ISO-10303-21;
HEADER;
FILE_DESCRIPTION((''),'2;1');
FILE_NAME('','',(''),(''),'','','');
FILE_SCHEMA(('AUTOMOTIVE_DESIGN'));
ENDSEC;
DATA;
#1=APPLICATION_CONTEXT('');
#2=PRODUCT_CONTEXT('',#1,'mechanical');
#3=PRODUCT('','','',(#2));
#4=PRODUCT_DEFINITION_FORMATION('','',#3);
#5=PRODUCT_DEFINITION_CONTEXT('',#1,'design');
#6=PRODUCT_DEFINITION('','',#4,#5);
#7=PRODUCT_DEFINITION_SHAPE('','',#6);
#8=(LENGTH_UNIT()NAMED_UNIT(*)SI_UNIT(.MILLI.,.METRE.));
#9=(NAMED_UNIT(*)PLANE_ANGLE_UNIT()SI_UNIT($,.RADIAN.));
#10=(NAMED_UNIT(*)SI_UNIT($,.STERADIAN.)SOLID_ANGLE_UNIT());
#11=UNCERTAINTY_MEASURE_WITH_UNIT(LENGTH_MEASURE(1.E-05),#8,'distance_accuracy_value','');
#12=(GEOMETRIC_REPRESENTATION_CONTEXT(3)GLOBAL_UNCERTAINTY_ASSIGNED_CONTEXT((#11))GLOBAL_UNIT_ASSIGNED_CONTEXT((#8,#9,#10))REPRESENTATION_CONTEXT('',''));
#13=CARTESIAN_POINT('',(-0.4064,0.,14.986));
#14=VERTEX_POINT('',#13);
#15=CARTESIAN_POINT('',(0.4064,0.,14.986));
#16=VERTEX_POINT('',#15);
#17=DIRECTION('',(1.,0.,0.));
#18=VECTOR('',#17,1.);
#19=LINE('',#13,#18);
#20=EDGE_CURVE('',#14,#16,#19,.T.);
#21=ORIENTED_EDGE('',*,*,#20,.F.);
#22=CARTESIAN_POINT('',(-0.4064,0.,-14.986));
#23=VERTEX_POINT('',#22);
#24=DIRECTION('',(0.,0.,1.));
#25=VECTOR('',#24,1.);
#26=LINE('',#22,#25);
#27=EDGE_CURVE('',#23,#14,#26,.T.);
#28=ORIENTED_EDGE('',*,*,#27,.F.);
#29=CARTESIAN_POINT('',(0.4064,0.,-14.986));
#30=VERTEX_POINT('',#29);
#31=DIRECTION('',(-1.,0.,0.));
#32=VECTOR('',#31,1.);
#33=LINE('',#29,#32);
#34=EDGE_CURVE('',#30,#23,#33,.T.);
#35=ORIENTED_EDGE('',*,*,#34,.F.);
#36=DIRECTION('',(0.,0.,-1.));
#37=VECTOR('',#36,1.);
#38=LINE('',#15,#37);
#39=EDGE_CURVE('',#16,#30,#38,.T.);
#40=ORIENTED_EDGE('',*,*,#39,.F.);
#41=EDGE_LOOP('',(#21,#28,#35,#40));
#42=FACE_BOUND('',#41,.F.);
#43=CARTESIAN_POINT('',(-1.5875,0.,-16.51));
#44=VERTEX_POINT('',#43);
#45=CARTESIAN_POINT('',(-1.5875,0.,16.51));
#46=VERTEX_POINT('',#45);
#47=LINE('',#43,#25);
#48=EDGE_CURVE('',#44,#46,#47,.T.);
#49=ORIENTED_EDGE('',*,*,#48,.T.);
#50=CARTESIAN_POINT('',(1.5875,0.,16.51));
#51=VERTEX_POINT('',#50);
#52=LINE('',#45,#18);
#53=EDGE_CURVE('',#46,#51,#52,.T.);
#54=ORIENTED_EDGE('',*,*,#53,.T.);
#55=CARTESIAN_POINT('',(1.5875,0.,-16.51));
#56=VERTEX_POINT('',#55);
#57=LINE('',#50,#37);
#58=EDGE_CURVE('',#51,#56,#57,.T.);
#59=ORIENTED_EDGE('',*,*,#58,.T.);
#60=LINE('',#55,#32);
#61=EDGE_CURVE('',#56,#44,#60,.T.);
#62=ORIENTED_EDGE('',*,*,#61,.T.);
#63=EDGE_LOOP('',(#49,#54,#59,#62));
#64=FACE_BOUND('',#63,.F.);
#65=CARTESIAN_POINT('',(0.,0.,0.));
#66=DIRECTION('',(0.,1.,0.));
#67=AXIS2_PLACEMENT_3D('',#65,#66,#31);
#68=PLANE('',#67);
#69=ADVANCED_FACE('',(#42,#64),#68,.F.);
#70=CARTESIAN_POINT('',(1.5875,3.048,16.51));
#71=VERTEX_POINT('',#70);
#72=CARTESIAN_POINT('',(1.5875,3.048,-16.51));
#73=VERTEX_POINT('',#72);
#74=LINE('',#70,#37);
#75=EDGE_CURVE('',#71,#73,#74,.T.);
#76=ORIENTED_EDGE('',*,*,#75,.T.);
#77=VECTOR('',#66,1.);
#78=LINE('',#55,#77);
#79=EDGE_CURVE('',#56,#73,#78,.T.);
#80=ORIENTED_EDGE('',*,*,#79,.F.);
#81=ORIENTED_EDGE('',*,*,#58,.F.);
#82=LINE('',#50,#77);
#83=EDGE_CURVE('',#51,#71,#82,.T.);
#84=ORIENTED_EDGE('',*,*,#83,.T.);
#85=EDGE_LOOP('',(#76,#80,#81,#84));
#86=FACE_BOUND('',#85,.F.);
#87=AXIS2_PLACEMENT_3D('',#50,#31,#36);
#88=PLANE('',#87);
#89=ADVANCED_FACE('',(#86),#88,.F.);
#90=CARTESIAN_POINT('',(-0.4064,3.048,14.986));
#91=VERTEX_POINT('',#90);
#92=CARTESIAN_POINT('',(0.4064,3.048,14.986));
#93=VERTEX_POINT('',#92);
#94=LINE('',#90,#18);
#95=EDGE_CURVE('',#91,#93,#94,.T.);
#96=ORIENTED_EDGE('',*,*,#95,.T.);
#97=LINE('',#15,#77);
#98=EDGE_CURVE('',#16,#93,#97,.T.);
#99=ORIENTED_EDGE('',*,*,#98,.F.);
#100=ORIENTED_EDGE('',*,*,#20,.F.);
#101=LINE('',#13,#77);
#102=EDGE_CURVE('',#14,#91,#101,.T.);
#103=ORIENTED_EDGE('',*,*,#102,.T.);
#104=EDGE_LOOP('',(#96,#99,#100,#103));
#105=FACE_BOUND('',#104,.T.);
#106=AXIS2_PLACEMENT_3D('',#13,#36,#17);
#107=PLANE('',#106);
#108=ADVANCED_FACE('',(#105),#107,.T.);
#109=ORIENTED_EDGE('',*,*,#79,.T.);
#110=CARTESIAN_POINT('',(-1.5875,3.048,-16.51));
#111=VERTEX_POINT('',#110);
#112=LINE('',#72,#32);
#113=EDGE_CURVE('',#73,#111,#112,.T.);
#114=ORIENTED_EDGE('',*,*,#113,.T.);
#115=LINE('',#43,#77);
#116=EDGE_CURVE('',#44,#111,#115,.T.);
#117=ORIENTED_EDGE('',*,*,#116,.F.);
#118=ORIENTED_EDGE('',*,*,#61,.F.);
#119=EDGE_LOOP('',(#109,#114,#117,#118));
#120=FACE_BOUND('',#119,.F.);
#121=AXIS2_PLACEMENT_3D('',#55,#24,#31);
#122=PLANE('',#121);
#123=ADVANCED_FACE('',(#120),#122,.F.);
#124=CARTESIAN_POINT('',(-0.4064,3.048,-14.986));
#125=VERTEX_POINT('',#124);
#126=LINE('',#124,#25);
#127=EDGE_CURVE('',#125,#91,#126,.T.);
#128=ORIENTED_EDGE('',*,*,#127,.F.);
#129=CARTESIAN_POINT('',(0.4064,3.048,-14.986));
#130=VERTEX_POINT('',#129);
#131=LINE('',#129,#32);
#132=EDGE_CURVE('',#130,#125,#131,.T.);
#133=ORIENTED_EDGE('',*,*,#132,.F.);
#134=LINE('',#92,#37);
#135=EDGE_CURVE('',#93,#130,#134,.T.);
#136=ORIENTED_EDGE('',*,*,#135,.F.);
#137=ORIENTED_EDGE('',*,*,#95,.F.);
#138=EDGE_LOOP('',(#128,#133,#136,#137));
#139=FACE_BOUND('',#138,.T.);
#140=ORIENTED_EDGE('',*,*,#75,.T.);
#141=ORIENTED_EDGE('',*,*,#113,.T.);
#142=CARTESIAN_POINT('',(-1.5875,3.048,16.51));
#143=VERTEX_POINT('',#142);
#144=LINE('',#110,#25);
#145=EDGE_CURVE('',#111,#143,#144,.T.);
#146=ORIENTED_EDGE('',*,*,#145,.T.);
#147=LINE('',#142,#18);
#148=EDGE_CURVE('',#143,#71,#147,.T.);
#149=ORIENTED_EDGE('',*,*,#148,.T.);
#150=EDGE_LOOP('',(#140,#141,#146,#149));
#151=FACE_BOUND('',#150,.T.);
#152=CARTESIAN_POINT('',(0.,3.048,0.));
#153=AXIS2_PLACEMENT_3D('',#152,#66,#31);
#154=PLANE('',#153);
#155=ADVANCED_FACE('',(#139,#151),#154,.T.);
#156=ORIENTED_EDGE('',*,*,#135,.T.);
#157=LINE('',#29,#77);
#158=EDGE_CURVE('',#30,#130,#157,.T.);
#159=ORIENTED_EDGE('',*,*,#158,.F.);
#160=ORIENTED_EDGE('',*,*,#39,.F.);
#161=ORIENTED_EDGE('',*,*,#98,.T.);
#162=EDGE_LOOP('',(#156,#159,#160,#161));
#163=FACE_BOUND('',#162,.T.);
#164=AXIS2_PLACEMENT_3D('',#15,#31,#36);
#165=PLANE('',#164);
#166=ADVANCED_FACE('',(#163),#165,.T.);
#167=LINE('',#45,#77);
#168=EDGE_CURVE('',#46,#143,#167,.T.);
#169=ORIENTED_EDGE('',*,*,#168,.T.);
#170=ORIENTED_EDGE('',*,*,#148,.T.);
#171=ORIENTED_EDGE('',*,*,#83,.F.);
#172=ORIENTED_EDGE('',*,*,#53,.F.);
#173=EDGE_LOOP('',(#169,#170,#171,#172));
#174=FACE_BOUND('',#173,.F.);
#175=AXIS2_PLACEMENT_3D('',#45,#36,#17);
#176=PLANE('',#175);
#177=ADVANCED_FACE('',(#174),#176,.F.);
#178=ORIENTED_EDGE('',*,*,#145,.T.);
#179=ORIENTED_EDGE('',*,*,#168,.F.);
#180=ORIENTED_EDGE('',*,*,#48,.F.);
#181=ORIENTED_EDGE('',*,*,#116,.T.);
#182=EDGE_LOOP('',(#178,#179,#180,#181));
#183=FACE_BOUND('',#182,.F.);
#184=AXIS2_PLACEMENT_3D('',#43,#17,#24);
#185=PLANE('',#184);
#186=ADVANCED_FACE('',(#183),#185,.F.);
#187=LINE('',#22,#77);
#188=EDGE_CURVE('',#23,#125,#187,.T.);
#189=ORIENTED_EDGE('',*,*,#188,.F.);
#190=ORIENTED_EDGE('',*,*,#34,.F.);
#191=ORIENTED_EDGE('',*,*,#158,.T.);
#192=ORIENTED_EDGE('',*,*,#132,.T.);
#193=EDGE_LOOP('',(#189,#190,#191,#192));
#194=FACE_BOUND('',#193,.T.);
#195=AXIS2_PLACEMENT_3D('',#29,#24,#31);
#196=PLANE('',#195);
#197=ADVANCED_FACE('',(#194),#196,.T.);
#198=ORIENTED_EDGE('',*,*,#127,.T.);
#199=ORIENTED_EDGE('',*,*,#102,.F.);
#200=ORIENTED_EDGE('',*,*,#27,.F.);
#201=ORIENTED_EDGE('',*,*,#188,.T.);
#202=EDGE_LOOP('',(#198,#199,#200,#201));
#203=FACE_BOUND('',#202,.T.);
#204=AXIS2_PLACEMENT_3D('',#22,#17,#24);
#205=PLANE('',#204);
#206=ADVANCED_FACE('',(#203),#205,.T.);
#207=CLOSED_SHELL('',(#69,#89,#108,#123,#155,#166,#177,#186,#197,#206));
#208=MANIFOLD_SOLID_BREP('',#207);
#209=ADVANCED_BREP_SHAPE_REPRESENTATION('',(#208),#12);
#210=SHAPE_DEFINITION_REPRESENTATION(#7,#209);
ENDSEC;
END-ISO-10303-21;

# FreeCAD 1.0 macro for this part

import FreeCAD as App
import Part
import Sketcher

V = App.Vector
Q = App.Units.Quantity

doc = App.newDocument("Part")
body = doc.addObject("PartDesign::Body", "Body")

sketch1 = body.newObject("Sketcher::SketchObject", "Sketch")
sketch1.AttachmentSupport = (doc.getObject("XZ_Plane"), [""])
sketch1.MapMode = "FlatFace"
sketch1.addGeometry([
    Part.LineSegment(V(1.6, 16.5, 0), V(1.6, -16.5, 0)),
    Part.LineSegment(V(1.6, -16.5, 0), V(-1.6, -16.5, 0)),
    Part.LineSegment(V(-1.6, -16.5, 0), V(-1.6, 16.5, 0)),
    Part.LineSegment(V(-1.6, 16.5, 0), V(1.6, 16.5, 0)),
    Part.LineSegment(V(-0.4, -15, 0), V(0.4, -15, 0)),
    Part.LineSegment(V(0.4, -15, 0), V(0.4, 15, 0)),
    Part.LineSegment(V(0.4, 15, 0), V(-0.4, 15, 0)),
    Part.LineSegment(V(-0.4, 15, 0), V(-0.4, -15, 0)),
], False)
sketch1.addConstraint([
    Sketcher.Constraint("Coincident", 0, 2, 1, 1),
    Sketcher.Constraint("Coincident", 1, 2, 2, 1),
    Sketcher.Constraint("Coincident", 2, 2, 3, 1),
    Sketcher.Constraint("Coincident", 3, 2, 0, 1),
    Sketcher.Constraint("Coincident", 4, 2, 5, 1),
    Sketcher.Constraint("Coincident", 5, 2, 6, 1),
    Sketcher.Constraint("Coincident", 6, 2, 7, 1),
    Sketcher.Constraint("Coincident", 7, 2, 4, 1),
    Sketcher.Constraint("Vertical", 0),
    Sketcher.Constraint("Horizontal", 1),
    Sketcher.Constraint("Vertical", 2),
    Sketcher.Constraint("Horizontal", 3),
    Sketcher.Constraint("Horizontal", 4),
    Sketcher.Constraint("Vertical", 5),
    Sketcher.Constraint("Horizontal", 6),
    Sketcher.Constraint("Vertical", 7),
    Sketcher.Constraint("Symmetric", 0, 2, 2, 2, -1, 1),
    Sketcher.Constraint("Symmetric", 4, 2, 6, 2, -1, 1),
    Sketcher.Constraint("DistanceY", 0, 2, 0, 1, Q("1.3 in")),
    Sketcher.Constraint("DistanceY", 5, 1, 5, 2, Q("1.18 in")),
    Sketcher.Constraint("DistanceX", 1, 2, 1, 1, Q("0.125 in")),
    Sketcher.Constraint("DistanceX", 4, 1, 4, 2, Q("0.032 in")),
])
pad1 = body.newObject("PartDesign::Pad", "Pad")
pad1.Profile = sketch1
pad1.Length = Q("0.12 in")
pad1.Reversed = True

doc.recompute()
